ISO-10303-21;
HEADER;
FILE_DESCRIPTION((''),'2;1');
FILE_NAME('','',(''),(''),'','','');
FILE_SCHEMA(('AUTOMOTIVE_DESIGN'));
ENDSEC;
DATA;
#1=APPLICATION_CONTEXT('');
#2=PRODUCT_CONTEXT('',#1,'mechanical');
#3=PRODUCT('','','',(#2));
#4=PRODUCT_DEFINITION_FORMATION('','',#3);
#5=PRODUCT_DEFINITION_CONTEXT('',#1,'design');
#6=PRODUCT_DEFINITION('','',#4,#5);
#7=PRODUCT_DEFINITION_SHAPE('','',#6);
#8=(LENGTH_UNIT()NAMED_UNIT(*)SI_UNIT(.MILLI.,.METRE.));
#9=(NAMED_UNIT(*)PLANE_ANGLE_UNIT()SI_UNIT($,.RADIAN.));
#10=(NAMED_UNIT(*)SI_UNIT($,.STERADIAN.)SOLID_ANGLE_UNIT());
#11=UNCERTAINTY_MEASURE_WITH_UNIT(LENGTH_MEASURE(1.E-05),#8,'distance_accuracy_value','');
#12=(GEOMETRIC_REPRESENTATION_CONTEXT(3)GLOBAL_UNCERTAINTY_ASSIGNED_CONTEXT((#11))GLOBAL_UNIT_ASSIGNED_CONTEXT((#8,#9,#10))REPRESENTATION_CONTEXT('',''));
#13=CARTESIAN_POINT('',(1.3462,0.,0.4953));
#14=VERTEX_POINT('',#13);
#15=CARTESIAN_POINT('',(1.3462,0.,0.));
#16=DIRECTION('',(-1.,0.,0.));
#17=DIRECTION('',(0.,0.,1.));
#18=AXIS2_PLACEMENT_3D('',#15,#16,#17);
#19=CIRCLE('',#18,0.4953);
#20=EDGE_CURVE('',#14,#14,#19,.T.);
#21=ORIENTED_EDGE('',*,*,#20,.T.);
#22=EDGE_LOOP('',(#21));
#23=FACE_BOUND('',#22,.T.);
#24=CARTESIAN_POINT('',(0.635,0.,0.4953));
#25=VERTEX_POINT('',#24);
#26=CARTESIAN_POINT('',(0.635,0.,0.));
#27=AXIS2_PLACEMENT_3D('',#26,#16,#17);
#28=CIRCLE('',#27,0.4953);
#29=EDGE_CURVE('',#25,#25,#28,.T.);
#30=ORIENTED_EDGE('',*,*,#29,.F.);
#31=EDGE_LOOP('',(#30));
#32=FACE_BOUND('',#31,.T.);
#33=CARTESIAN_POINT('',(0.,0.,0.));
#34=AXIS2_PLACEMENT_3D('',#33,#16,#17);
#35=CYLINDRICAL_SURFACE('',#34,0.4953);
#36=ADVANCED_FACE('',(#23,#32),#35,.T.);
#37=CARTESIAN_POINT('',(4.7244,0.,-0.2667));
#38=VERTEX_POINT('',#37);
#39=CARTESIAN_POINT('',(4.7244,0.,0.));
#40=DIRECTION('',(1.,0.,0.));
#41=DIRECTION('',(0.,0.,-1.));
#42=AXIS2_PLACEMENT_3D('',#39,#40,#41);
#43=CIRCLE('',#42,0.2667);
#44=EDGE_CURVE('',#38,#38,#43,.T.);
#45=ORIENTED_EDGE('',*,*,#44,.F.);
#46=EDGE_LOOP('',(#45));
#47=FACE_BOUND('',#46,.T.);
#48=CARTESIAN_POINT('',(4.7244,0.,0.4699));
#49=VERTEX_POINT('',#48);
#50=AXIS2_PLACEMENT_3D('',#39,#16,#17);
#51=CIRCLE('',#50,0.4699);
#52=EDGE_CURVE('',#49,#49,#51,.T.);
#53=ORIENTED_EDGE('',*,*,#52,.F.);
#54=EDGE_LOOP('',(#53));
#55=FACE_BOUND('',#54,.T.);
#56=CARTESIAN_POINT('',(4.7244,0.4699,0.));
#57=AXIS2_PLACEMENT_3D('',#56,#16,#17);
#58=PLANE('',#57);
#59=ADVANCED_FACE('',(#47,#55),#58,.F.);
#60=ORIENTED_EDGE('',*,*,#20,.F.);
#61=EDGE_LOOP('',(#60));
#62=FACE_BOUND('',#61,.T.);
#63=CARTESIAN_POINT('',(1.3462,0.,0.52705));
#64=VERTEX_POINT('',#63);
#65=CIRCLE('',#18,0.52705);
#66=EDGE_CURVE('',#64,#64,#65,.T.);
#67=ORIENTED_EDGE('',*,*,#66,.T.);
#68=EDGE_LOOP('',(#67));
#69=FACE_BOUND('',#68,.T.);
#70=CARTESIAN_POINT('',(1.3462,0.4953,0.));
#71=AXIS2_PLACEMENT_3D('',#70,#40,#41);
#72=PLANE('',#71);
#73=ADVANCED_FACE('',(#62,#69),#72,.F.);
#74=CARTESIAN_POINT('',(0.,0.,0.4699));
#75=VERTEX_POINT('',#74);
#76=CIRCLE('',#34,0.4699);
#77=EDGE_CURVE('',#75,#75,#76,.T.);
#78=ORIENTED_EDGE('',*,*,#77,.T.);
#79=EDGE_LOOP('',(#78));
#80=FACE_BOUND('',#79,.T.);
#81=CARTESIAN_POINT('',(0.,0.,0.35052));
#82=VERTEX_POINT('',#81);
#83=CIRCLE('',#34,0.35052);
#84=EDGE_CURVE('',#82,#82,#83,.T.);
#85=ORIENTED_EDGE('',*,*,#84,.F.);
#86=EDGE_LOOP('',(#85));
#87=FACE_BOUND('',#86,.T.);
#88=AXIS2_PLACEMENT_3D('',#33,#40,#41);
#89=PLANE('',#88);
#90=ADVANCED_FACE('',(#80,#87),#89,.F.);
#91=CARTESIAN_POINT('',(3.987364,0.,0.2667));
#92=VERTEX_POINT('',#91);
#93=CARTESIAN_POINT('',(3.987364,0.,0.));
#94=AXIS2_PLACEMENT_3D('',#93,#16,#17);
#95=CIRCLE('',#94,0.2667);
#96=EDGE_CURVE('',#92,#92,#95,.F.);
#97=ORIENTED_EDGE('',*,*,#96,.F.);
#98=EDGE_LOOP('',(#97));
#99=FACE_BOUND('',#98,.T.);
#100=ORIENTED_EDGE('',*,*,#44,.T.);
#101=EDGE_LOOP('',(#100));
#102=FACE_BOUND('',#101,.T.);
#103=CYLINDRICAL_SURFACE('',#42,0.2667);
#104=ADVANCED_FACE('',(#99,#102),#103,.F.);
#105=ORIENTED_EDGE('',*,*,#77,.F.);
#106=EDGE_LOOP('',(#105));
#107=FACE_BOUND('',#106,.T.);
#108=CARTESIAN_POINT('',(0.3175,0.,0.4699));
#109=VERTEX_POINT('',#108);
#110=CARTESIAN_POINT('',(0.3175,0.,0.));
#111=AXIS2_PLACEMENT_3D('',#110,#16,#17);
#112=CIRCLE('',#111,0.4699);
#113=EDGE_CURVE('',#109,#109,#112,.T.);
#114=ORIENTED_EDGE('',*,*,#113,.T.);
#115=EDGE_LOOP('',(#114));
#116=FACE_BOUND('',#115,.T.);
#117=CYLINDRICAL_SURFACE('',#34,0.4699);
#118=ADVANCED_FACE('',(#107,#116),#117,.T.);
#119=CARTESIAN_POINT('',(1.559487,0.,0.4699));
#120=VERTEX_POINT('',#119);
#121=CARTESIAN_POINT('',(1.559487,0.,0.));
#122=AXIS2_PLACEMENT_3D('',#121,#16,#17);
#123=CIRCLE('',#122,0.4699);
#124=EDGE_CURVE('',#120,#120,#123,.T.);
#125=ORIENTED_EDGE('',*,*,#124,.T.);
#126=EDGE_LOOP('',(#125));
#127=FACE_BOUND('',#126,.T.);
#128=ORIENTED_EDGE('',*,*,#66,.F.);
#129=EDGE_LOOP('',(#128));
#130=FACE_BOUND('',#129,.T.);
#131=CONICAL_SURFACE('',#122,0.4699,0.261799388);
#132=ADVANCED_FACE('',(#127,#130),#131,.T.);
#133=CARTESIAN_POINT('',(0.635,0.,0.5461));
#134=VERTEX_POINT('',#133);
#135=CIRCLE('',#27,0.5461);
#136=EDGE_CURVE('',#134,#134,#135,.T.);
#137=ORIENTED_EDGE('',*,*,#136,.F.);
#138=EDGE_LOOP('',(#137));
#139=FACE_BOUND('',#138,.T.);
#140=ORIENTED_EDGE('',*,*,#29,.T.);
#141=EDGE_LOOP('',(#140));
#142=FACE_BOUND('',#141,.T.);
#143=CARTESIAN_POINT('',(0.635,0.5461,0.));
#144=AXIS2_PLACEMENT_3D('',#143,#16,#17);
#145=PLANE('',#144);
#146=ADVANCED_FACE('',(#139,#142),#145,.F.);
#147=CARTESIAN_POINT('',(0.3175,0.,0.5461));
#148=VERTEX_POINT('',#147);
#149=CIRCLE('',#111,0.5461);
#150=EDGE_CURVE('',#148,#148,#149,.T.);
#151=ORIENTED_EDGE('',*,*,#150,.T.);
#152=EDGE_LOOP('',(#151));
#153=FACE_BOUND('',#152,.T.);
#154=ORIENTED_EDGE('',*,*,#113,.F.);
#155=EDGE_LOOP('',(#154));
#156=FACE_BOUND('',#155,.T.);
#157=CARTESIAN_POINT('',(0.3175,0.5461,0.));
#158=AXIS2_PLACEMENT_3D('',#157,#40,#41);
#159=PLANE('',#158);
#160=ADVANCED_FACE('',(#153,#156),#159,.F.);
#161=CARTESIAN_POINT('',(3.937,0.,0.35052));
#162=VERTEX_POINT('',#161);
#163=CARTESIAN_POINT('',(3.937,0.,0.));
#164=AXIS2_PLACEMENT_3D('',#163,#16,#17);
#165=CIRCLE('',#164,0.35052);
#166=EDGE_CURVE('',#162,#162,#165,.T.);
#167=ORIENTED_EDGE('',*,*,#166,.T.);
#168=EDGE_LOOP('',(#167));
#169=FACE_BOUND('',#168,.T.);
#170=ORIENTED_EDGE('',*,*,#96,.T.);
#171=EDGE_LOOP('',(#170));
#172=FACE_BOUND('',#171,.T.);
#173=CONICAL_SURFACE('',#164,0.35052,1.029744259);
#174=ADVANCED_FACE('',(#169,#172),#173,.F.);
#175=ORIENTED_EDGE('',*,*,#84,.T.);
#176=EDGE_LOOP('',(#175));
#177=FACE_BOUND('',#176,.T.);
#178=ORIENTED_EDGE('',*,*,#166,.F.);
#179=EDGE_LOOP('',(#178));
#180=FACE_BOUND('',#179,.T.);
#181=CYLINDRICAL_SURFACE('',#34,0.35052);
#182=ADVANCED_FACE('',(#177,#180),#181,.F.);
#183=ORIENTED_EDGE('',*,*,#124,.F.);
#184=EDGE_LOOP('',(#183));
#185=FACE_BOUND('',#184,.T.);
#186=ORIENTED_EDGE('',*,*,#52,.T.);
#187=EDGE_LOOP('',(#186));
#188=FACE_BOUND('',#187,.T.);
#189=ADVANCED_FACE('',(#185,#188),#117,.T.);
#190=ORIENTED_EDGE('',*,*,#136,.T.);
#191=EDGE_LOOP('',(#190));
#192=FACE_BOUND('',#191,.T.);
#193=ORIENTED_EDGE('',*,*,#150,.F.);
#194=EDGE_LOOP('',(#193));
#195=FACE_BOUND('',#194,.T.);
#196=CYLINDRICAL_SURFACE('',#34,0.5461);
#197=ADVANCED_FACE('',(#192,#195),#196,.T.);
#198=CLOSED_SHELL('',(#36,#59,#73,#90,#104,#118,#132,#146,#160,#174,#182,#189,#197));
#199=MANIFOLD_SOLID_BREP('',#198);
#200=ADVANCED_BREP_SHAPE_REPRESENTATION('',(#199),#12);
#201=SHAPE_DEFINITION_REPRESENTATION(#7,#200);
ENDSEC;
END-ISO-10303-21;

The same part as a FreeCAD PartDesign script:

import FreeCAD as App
import Part
import Sketcher

V = App.Vector
Q = App.Units.Quantity


def add_polygon(sketch, points):
    """Adds a closed chain of lines whose ends are joined by coincident constraints."""
    first, n = sketch.GeometryCount, len(points)
    for a, b in zip(points, points[1:] + points[:1]):
        sketch.addGeometry(Part.LineSegment(App.Vector(*a, 0), App.Vector(*b, 0)), False)
    for i in range(n):
        sketch.addConstraint(Sketcher.Constraint("Coincident", first + i, 2, first + (i + 1) % n, 1))

doc = App.newDocument("Part")
body = doc.addObject("PartDesign::Body", "Body")

# Sketch on XY plane
sketch1 = doc.addObject("Sketcher::SketchObject", "Sketch")
body.addObject(sketch1)
sketch1.AttachmentSupport = (doc.XY_Plane, [""])
sketch1.MapMode = "FlatFace"
add_polygon(sketch1, [(0, 0.4699), (0, 0), (4.7244, 0), (4.7244, 0.4699), (1.559487, 0.4699), (1.3462, 0.52705), (1.3462, 0.4953), (0.635, 0.4953), (0.635, 0.5461), (0.3175, 0.5461), (0.3175, 0.4699)])  # lines 0-10
sketch1.addConstraint(Sketcher.Constraint("Vertical", 0))
sketch1.addConstraint(Sketcher.Constraint("Horizontal", 1))
sketch1.addConstraint(Sketcher.Constraint("Vertical", 2))
sketch1.addConstraint(Sketcher.Constraint("Horizontal", 3))
sketch1.addConstraint(Sketcher.Constraint("Vertical", 5))
sketch1.addConstraint(Sketcher.Constraint("Horizontal", 6))
sketch1.addConstraint(Sketcher.Constraint("Vertical", 7))
sketch1.addConstraint(Sketcher.Constraint("Horizontal", 8))
sketch1.addConstraint(Sketcher.Constraint("Vertical", 9))
sketch1.addConstraint(Sketcher.Constraint("Horizontal", 10))
sketch1.addConstraint(Sketcher.Constraint("Coincident", 0, 2, -1, 1))
sketch1.addConstraint(Sketcher.Constraint("Horizontal", 3, 2, 9, 2))
sketch1.addConstraint(Sketcher.Constraint("Equal", 8, 10))
sketch1.addConstraint(Sketcher.Constraint("Angle", 4, Q("165 deg")))
sketch1.addConstraint(Sketcher.Constraint("DistanceX", 1, 1, 1, 2, Q("0.186 in")))
sketch1.addConstraint(Sketcher.Constraint("DistanceX", 6, 2, 6, 1, Q("0.028 in")))
sketch1.addConstraint(Sketcher.Constraint("DistanceY", 7, 1, 7, 2, Q("0.002 in")))
sketch1.addConstraint(Sketcher.Constraint("DistanceY", 9, 2, 9, 1, Q("0.003 in")))
sketch1.addConstraint(Sketcher.Constraint("DistanceX", 8, 2, 8, 1, Q("0.0125 in")))
sketch1.addConstraint(Sketcher.Constraint("DistanceY", 0, 2, 0, 1, Q("0.0185 in")))
sketch1.addConstraint(Sketcher.Constraint("DistanceY", 5, 2, 5, 1, Q("0.03175 mm")))
revolution = doc.addObject("PartDesign::Revolution", "Revolution")
body.addObject(revolution)
revolution.Profile = sketch1
revolution.ReferenceAxis = (sketch1, ["H_Axis"])
revolution.Angle = 360

# Sketch on YZ plane
sketch2 = doc.addObject("Sketcher::SketchObject", "Sketch001")
body.addObject(sketch2)
sketch2.AttachmentSupport = (doc.YZ_Plane, [""])
sketch2.MapMode = "FlatFace"
sketch2.addGeometry(Part.Circle(V(0, 0, 0), V(0, 0, 1), 0.35052), False)
sketch2.addConstraint(Sketcher.Constraint("Coincident", 0, 3, -1, 1))
sketch2.addConstraint(Sketcher.Constraint("Diameter", 0, Q("0.0276 in")))
doc.recompute()
hole = doc.addObject("PartDesign::Hole", "Hole")
body.addObject(hole)
hole.Profile = sketch2
hole.ThreadType = "None"
hole.Diameter = Q("0.0276 in")
hole.DepthType = "Dimension"
hole.Depth = Q("0.155 in")
hole.DrillPoint = "Angled"
hole.DrillPointAngle = 118
hole.Reversed = True

# Sketch on YZ plane
sketch3 = doc.addObject("Sketcher::SketchObject", "Sketch002")
body.addObject(sketch3)
sketch3.AttachmentSupport = (doc.YZ_Plane, [""])
sketch3.MapMode = "FlatFace"
sketch3.AttachmentOffset = App.Placement(V(0, 0, 0.186 * 25.4), App.Rotation())
sketch3.addGeometry(Part.Circle(V(0, 0, 0), V(0, 0, 1), 0.2667), False)
sketch3.addConstraint(Sketcher.Constraint("Coincident", 0, 3, -1, 1))
sketch3.addConstraint(Sketcher.Constraint("Diameter", 0, Q("0.021 in")))
doc.recompute()
hole2 = doc.addObject("PartDesign::Hole", "Hole001")
body.addObject(hole2)
hole2.Profile = sketch3
hole2.ThreadType = "None"
hole2.Diameter = Q("0.021 in")
hole2.DepthType = "Dimension"
hole2.Depth = Q("0.186 in")
hole2.DrillPoint = "Angled"
hole2.DrillPointAngle = 118

doc.recompute()
